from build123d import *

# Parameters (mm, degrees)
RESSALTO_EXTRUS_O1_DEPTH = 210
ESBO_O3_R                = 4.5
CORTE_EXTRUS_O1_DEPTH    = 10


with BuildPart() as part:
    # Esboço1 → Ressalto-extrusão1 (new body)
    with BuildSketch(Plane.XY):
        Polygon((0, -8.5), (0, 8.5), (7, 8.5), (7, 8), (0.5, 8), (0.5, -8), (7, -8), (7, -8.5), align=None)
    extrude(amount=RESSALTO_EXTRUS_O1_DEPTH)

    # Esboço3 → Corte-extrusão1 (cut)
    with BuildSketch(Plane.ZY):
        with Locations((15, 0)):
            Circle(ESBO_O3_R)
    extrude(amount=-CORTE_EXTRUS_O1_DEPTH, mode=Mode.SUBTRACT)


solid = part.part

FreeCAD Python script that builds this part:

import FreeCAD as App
import Part
import Sketcher
from FreeCAD import Vector


def add_polygon(sketch, points):
    """Adds a closed chain of lines whose ends are joined by coincident constraints."""
    first, n = sketch.GeometryCount, len(points)
    for a, b in zip(points, points[1:] + points[:1]):
        sketch.addGeometry(Part.LineSegment(App.Vector(*a, 0), App.Vector(*b, 0)), False)
    for i in range(n):
        sketch.addConstraint(Sketcher.Constraint("Coincident", first + i, 2, first + (i + 1) % n, 1))

doc = App.newDocument("Part")
body = doc.addObject("PartDesign::Body", "Body")

# Sketch on XY plane
sketch1 = body.newObject("Sketcher::SketchObject", "Sketch")
sketch1.AttachmentSupport = (doc.getObject("XY_Plane"), [""])
sketch1.MapMode = "FlatFace"
add_polygon(sketch1, [(0, 8.5), (0, -8.5), (7, -8.5), (7, -8), (0.5, -8), (0.5, 8), (7, 8), (7, 8.5)])  # lines 0-7
sketch1.addConstraint([
    Sketcher.Constraint("Vertical", 0),
    Sketcher.Constraint("Horizontal", 1),
    Sketcher.Constraint("Vertical", 2),
    Sketcher.Constraint("Horizontal", 3),
    Sketcher.Constraint("Vertical", 4),
    Sketcher.Constraint("Horizontal", 5),
    Sketcher.Constraint("Vertical", 6),
    Sketcher.Constraint("Horizontal", 7),
    Sketcher.Constraint("Symmetric", 0, 2, 7, 2, -1, 1),
    Sketcher.Constraint("Symmetric", 2, 2, 5, 2, -1),
    Sketcher.Constraint("DistanceX", 1, 1, 1, 2, 7.0),
    Sketcher.Constraint("DistanceY", 0, 2, 0, 1, 17.0),
    Sketcher.Constraint("DistanceY", 4, 1, 4, 2, 16.0),
    Sketcher.Constraint("DistanceX", 3, 2, 3, 1, 6.5),
])
pad1 = body.newObject("PartDesign::Pad", "Pad")
pad1.Profile = sketch1
pad1.Length = 210

# Sketch on YZ plane
sketch2 = body.newObject("Sketcher::SketchObject", "Sketch001")
sketch2.AttachmentSupport = (doc.getObject("YZ_Plane"), [""])
sketch2.MapMode = "FlatFace"
sketch2.addGeometry(Part.Circle(Vector(0, 15, 0), Vector(0, 0, 1), 4.5), False)
sketch2.addConstraint([
    Sketcher.Constraint("PointOnObject", 0, 3, -2),
    Sketcher.Constraint("Diameter", 0, 9.0),
    Sketcher.Constraint("DistanceY", -1, 1, 0, 3, 15.0),
])
pocket1 = body.newObject("PartDesign::Pocket", "Pocket")
pocket1.Profile = sketch2
pocket1.Length = 10
pocket1.Reversed = True

doc.recompute()
